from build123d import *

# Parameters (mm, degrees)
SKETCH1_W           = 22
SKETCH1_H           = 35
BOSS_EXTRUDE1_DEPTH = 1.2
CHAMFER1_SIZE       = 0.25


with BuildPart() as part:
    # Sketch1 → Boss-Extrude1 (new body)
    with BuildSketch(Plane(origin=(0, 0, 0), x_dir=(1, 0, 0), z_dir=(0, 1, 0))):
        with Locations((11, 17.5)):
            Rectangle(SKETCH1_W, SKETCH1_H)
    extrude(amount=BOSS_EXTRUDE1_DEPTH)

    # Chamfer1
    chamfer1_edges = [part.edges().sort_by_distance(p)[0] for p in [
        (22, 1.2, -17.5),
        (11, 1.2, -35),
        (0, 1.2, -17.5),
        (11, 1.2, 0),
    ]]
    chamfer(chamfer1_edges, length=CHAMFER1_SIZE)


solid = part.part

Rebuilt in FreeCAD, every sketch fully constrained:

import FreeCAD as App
import Part
import Sketcher
from FreeCAD import Vector


def edges_at(feature, points):
    """Names of the edges that pass closest to the given points."""
    edges = feature.Shape.Edges
    near = lambda p: min(range(len(edges)), key=lambda i: edges[i].distToShape(Part.Vertex(*p))[0])
    return sorted({f"Edge{near(p) + 1}" for p in points})


def add_polygon(sketch, points):
    """Adds a closed chain of lines whose ends are joined by coincident constraints."""
    first, n = sketch.GeometryCount, len(points)
    for a, b in zip(points, points[1:] + points[:1]):
        sketch.addGeometry(Part.LineSegment(App.Vector(*a, 0), App.Vector(*b, 0)), False)
    for i in range(n):
        sketch.addConstraint(Sketcher.Constraint("Coincident", first + i, 2, first + (i + 1) % n, 1))

doc = App.newDocument("Part")
body = doc.addObject("PartDesign::Body", "Body")

# Sketch on XZ plane
sketch1 = body.newObject("Sketcher::SketchObject", "Sketch")
sketch1.AttachmentSupport = (doc.getObject("XZ_Plane"), [""])
sketch1.MapMode = "FlatFace"
add_polygon(sketch1, [(0, -35), (0, 0), (22, 0), (22, -35)])  # lines 0-3
sketch1.addConstraint(Sketcher.Constraint("Vertical", 0))
sketch1.addConstraint(Sketcher.Constraint("Horizontal", 1))
sketch1.addConstraint(Sketcher.Constraint("Vertical", 2))
sketch1.addConstraint(Sketcher.Constraint("Horizontal", 3))
sketch1.addConstraint(Sketcher.Constraint("Coincident", 0, 2, -1, 1))
sketch1.addConstraint(Sketcher.Constraint("DistanceX", 1, 1, 1, 2, 22.0))
sketch1.addConstraint(Sketcher.Constraint("DistanceY", 0, 1, 0, 2, 35.0))
pad1 = body.newObject("PartDesign::Pad", "Pad")
pad1.Profile = sketch1
pad1.Length = 1.2
pad1.Reversed = True
doc.recompute()

chamfer = body.newObject("PartDesign::Chamfer", "Chamfer")
chamfer.Base = (pad1, edges_at(pad1, [
    (22, 1.2, -17.5),
    (11, 1.2, -35),
    (0, 1.2, -17.5),
    (11, 1.2, 0),
]))
chamfer.Size = 0.25

doc.recompute()
